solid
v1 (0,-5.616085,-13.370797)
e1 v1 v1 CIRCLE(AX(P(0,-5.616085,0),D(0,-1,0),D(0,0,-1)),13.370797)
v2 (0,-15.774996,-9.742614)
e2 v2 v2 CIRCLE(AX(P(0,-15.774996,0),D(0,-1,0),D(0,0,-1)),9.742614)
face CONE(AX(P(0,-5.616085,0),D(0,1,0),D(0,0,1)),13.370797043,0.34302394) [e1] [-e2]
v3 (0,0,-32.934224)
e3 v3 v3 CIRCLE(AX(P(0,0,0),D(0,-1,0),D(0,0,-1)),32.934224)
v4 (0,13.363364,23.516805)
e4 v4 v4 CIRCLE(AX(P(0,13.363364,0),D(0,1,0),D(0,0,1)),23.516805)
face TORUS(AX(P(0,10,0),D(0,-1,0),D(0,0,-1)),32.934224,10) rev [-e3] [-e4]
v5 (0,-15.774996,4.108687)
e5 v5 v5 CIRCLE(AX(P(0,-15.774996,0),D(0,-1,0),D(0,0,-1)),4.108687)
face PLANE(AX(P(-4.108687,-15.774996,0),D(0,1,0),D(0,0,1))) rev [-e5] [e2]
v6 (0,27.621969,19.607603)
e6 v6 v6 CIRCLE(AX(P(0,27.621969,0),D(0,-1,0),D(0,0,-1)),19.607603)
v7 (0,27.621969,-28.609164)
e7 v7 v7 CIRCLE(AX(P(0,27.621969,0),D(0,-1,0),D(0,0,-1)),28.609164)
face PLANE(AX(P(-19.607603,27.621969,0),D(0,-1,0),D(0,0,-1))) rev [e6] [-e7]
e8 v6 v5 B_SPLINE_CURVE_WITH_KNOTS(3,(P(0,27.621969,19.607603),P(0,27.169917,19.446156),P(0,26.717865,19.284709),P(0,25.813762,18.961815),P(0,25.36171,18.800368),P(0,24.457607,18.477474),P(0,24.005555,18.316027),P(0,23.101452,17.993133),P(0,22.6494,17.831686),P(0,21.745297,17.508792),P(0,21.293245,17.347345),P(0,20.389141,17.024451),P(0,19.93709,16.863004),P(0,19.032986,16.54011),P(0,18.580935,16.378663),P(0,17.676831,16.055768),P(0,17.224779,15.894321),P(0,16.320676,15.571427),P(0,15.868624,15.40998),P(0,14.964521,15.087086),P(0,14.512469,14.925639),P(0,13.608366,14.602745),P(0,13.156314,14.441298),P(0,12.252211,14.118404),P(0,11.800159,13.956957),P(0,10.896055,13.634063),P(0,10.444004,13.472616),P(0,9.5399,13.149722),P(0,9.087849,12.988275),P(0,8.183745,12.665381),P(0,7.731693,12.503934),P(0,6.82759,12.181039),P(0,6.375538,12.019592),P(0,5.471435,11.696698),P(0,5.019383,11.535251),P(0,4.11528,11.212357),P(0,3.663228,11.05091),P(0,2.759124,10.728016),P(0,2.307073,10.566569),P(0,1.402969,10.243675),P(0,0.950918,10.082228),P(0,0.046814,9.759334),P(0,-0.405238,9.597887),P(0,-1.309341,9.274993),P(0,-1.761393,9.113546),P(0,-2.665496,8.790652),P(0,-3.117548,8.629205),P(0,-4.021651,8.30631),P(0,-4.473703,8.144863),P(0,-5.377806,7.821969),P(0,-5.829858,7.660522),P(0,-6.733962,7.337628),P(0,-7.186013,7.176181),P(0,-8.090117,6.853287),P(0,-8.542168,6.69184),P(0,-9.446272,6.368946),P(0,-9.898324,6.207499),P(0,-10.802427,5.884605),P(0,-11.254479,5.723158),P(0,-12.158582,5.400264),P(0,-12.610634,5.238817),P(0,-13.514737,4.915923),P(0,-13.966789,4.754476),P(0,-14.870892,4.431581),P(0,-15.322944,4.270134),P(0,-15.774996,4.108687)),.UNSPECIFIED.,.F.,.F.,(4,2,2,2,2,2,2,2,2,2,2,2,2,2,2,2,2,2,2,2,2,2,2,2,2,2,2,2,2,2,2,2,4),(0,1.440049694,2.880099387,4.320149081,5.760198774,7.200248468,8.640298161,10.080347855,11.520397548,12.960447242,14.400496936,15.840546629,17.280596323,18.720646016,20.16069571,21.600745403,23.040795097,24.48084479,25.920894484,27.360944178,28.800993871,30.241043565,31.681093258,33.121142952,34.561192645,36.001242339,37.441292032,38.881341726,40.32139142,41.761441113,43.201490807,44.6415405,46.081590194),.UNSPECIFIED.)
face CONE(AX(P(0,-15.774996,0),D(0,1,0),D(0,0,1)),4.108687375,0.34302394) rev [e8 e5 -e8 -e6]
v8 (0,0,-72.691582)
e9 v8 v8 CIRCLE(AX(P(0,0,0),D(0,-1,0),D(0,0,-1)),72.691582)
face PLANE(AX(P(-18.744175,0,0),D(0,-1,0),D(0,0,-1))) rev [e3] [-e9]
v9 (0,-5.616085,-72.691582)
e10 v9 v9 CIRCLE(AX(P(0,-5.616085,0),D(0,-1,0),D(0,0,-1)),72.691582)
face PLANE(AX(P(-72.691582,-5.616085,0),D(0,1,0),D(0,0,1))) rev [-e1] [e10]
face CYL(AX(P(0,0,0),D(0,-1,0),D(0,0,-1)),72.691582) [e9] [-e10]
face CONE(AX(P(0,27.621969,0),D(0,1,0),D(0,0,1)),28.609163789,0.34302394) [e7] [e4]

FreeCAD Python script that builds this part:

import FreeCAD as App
import Part
import Sketcher

V = App.Vector
Q = App.Units.Quantity


def edges_at(feature, points):
    """Names of the edges that pass closest to the given points."""
    edges = feature.Shape.Edges
    near = lambda p: min(range(len(edges)), key=lambda i: edges[i].distToShape(Part.Vertex(*p))[0])
    return sorted({f"Edge{near(p) + 1}" for p in points})


def add_polygon(sketch, points):
    """Adds a closed chain of lines whose ends are joined by coincident constraints."""
    first, n = sketch.GeometryCount, len(points)
    for a, b in zip(points, points[1:] + points[:1]):
        sketch.addGeometry(Part.LineSegment(App.Vector(*a, 0), App.Vector(*b, 0)), False)
    for i in range(n):
        sketch.addConstraint(Sketcher.Constraint("Coincident", first + i, 2, first + (i + 1) % n, 1))

doc = App.newDocument("Part")
body = doc.addObject("PartDesign::Body", "Body")

# Sketch on XY plane
sketch1 = body.newObject("Sketcher::SketchObject", "Sketch")
sketch1.AttachmentSupport = (doc.getObject("XY_Plane"), [""])
sketch1.MapMode = "FlatFace"
add_polygon(sketch1, [(-18.744175, 0), (-72.691582, 0), (-72.691582, -5.616085), (-13.370797, -5.616085), (-9.742614, -15.774996), (-4.108687, -15.774996), (-9.742614, 0), (-19.607603, 27.621969), (-28.609164, 27.621969)])  # lines 0-8
sketch1.addConstraint(Sketcher.Constraint("Horizontal", 0))
sketch1.addConstraint(Sketcher.Constraint("Vertical", 1))
sketch1.addConstraint(Sketcher.Constraint("Horizontal", 2))
sketch1.addConstraint(Sketcher.Constraint("Horizontal", 4))
sketch1.addConstraint(Sketcher.Constraint("Horizontal", 7))
sketch1.addConstraint(Sketcher.Constraint("PointOnObject", 0, 2, -1))
sketch1.addConstraint(Sketcher.Constraint("PointOnObject", 5, 2, -1))
sketch1.addConstraint(Sketcher.Constraint("Parallel", 3, 5))
sketch1.addConstraint(Sketcher.Constraint("Parallel", 5, 6))
sketch1.addConstraint(Sketcher.Constraint("Parallel", 6, 8))
sketch1.addConstraint(Sketcher.Constraint("Vertical", 3, 2, 5, 2))
sketch1.addConstraint(Sketcher.Constraint("DistanceX", 7, 2, 7, 1, Q("9.00156 mm")))
sketch1.addConstraint(Sketcher.Constraint("Distance", 5, Q("16.75087 mm")))
sketch1.addConstraint(Sketcher.Constraint("Distance", 6, Q("29.330721 mm")))
sketch1.addConstraint(Sketcher.Constraint("DistanceX", 0, 2, 0, 1, Q("53.947407 mm")))
sketch1.addConstraint(Sketcher.Constraint("DistanceX", 2, 1, 2, 2, Q("59.320785 mm")))
sketch1.addConstraint(Sketcher.Constraint("DistanceX", 4, 1, 4, 2, Q("5.633927 mm")))
sketch1.addConstraint(Sketcher.Constraint("DistanceX", 0, 2, -1, 1, Q("72.691582 mm")))
revolution = body.newObject("PartDesign::Revolution", "Revolution")
revolution.Profile = sketch1
revolution.ReferenceAxis = (sketch1, ["V_Axis"])
revolution.Angle = 360
doc.recompute()

fillet = body.newObject("PartDesign::Fillet", "Fillet")
fillet.Base = (revolution, edges_at(revolution, [(0, 0, 18.744)]))
fillet.Radius = 10

doc.recompute()
